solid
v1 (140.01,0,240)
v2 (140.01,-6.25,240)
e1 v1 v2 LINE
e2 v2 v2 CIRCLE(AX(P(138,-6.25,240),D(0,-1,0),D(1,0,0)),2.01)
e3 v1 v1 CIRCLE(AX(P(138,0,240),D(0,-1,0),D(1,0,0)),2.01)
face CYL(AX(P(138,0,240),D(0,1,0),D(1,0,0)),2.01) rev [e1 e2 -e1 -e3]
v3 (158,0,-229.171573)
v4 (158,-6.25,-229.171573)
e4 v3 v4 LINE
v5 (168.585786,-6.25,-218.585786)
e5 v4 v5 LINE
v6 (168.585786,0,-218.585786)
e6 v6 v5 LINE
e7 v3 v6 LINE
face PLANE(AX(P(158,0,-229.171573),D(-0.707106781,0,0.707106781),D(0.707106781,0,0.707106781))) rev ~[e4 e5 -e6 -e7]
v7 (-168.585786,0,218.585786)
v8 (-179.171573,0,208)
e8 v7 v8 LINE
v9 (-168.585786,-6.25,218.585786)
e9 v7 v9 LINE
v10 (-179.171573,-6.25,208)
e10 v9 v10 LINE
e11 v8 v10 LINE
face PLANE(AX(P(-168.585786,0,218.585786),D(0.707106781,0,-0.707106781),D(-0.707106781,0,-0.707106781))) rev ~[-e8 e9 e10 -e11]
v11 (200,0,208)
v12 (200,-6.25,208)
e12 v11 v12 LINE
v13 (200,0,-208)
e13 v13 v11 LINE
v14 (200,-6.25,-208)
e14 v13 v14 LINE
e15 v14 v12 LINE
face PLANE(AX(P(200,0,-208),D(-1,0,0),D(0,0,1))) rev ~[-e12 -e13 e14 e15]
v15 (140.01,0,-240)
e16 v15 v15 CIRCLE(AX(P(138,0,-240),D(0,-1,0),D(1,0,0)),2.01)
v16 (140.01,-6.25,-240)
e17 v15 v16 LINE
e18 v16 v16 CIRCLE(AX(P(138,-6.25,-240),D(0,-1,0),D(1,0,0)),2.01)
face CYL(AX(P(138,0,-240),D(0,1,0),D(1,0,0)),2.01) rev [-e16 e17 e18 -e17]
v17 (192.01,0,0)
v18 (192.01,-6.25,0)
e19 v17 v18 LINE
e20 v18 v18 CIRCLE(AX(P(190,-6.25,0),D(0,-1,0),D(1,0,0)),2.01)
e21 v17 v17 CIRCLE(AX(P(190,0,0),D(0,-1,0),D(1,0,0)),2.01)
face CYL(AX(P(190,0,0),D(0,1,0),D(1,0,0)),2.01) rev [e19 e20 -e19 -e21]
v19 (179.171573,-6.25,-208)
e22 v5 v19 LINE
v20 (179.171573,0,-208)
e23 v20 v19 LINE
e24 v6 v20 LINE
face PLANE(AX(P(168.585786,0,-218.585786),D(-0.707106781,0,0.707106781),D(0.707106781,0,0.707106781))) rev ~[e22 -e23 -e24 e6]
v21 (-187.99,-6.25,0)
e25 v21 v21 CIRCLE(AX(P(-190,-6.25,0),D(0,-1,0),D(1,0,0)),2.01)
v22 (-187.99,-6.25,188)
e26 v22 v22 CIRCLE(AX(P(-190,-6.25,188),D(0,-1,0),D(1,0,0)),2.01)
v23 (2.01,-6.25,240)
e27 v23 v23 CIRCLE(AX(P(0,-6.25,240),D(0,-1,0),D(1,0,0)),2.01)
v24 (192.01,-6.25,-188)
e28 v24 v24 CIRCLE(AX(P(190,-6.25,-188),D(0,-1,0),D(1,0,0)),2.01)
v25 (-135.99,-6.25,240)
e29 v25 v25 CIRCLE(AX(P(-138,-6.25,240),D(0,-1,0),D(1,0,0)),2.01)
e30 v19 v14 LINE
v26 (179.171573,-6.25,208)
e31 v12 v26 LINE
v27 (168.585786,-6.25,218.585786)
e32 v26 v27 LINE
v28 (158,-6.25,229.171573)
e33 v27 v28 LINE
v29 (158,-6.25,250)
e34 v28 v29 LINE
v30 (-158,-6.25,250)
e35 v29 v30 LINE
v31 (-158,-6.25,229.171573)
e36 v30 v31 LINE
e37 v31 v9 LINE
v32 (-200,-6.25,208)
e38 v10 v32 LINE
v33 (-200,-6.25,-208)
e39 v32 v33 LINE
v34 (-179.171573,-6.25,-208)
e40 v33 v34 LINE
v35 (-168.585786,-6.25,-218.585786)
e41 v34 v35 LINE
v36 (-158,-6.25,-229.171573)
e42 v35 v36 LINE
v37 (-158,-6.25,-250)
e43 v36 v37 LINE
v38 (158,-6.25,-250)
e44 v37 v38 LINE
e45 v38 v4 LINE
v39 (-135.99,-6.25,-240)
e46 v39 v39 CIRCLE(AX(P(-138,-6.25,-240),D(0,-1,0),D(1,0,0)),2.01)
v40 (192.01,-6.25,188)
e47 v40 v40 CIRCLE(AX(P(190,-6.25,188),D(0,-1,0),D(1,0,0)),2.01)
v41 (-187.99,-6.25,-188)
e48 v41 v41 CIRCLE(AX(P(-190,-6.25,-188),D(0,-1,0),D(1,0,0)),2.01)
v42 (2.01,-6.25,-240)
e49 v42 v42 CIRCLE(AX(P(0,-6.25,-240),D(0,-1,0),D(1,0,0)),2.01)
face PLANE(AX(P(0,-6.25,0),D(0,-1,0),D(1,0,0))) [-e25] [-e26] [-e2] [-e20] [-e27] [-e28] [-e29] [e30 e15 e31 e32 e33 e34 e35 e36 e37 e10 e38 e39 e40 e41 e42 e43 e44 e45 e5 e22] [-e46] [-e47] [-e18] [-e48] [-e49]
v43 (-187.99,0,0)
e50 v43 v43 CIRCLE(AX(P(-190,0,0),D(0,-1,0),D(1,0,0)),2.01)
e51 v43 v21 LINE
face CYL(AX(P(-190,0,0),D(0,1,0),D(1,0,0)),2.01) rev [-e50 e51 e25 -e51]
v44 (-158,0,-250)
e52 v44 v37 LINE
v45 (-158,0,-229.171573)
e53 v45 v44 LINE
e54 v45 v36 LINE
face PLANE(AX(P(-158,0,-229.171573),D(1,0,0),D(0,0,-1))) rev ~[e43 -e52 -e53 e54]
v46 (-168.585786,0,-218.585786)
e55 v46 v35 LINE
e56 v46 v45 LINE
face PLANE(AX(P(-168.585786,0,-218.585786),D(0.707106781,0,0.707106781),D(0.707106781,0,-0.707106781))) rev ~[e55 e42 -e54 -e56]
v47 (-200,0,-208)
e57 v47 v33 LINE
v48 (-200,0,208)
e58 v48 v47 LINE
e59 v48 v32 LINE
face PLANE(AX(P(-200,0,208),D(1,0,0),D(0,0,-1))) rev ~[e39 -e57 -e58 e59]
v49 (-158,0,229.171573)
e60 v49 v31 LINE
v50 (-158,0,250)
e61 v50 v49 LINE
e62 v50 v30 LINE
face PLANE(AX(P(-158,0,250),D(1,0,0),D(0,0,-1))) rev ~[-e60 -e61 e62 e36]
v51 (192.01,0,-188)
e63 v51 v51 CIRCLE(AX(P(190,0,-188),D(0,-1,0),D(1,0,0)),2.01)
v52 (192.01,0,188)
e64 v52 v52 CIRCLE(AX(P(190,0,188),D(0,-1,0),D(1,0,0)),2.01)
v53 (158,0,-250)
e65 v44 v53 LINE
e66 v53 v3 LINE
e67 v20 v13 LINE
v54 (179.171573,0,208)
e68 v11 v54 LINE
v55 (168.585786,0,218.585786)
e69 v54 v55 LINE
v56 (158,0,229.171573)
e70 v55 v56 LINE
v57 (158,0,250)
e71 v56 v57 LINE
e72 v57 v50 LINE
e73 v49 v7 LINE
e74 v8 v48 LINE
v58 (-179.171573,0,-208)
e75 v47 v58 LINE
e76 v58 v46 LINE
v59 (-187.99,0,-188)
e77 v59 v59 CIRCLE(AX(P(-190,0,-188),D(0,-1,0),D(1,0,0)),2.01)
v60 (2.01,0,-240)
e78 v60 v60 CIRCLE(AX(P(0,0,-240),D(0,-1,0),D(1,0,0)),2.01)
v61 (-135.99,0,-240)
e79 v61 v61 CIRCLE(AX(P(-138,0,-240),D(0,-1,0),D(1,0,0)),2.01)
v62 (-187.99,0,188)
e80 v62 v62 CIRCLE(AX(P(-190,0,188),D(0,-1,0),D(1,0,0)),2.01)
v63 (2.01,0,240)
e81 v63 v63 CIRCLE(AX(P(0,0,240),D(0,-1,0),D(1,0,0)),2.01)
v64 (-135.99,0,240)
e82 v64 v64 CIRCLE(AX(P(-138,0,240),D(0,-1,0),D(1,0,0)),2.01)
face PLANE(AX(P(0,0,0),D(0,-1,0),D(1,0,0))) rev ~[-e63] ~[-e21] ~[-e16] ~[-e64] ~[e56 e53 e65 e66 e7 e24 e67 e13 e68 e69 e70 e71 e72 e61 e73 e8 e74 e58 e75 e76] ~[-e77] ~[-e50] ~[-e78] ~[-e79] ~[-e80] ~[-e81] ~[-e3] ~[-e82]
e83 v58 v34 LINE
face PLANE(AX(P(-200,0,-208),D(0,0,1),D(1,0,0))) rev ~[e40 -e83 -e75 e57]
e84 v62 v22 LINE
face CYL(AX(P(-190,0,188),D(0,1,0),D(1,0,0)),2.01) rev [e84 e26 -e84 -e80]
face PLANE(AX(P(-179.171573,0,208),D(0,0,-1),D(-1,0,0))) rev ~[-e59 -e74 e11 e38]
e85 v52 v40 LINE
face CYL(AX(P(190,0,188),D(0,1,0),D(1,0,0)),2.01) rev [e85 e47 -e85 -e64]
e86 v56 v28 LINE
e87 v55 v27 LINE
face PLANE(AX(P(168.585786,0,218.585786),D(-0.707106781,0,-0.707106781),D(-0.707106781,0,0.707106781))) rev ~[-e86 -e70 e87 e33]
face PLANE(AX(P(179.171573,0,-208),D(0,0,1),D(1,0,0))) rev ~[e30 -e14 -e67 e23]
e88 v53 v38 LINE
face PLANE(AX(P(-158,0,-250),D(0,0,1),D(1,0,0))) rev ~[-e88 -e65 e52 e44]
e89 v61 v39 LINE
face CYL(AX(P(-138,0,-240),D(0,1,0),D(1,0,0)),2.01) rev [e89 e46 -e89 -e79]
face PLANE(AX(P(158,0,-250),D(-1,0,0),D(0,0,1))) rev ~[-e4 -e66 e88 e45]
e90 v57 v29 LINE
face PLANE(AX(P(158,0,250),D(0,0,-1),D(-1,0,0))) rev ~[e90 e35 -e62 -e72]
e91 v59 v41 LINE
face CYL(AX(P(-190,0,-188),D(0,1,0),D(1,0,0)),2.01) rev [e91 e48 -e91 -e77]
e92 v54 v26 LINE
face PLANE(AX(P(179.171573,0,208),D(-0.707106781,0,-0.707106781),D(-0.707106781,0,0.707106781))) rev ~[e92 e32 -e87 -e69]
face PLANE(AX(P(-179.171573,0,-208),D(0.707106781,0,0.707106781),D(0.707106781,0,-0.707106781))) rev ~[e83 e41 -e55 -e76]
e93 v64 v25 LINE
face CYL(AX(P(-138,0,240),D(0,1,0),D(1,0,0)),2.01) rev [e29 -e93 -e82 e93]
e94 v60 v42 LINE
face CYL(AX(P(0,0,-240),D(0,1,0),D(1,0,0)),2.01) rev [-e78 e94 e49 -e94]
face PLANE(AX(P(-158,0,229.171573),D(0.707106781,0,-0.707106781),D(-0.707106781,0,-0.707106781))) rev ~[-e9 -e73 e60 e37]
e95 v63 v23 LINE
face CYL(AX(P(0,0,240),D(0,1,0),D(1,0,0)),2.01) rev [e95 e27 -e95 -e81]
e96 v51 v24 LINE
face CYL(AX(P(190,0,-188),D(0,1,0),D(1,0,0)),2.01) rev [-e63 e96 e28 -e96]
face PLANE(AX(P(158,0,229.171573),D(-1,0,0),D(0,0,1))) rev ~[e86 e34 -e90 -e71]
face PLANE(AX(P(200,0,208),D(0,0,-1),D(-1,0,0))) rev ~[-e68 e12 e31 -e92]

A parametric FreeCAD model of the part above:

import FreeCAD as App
import Part
import Sketcher
from FreeCAD import Vector
Q = App.Units.Quantity


def add_polygon(sketch, points):
    """Adds a closed chain of lines whose ends are joined by coincident constraints."""
    first, n = sketch.GeometryCount, len(points)
    for a, b in zip(points, points[1:] + points[:1]):
        sketch.addGeometry(Part.LineSegment(App.Vector(*a, 0), App.Vector(*b, 0)), False)
    for i in range(n):
        sketch.addConstraint(Sketcher.Constraint("Coincident", first + i, 2, first + (i + 1) % n, 1))

doc = App.newDocument("Part")
params = doc.addObject("Spreadsheet::Sheet", "Params")
for row, (alias, value) in enumerate([
    ("sketch1_diameter", "4.02 mm"),
    ("sketch1_width", "316 mm"),
    ("sketch1_height", "416 mm"),
    ("pad1_length", "6.25 mm"),
], start=1):
    params.set(f"A{row}", alias)
    params.set(f"B{row}", "=" + value)
    params.setAlias(f"B{row}", alias)

body = doc.addObject("PartDesign::Body", "Body")

# Sketch on XZ plane
sketch1 = body.newObject("Sketcher::SketchObject", "Sketch")
sketch1.AttachmentSupport = (doc.getObject("XZ_Plane"), [""])
sketch1.MapMode = "FlatFace"
add_polygon(sketch1, [(179.2, -208), (200, -208), (200, 208), (179.2, 208), (168.6, 218.6), (158, 229.2), (158, 250), (-158, 250), (-158, 229.2), (-168.6, 218.6), (-179.2, 208), (-200, 208), (-200, -208), (-179.2, -208), (-168.6, -218.6), (-158, -229.2), (-158, -250), (158, -250), (158, -229.2), (168.6, -218.6)])  # lines 0-19
sketch1.addGeometry(Part.Circle(Vector(-190, -188, 0), Vector(0, 0, 1), 2), False)  # 20
sketch1.addGeometry(Part.Circle(Vector(-138, -240, 0), Vector(0, 0, 1), 2), False)  # 21
sketch1.addGeometry(Part.Circle(Vector(0, -240, 0), Vector(0, 0, 1), 2), False)  # 22
sketch1.addGeometry(Part.Circle(Vector(138, -240, 0), Vector(0, 0, 1), 2), False)  # 23
sketch1.addGeometry(Part.Circle(Vector(190, -188, 0), Vector(0, 0, 1), 2), False)  # 24
sketch1.addGeometry(Part.Circle(Vector(-190, 0, 0), Vector(0, 0, 1), 2), False)  # 25
sketch1.addGeometry(Part.Circle(Vector(-190, 188, 0), Vector(0, 0, 1), 2), False)  # 26
sketch1.addGeometry(Part.Circle(Vector(-138, 240, 0), Vector(0, 0, 1), 2), False)  # 27
sketch1.addGeometry(Part.Circle(Vector(0, 240, 0), Vector(0, 0, 1), 2), False)  # 28
sketch1.addGeometry(Part.Circle(Vector(190, 0, 0), Vector(0, 0, 1), 2), False)  # 29
sketch1.addGeometry(Part.Circle(Vector(138, 240, 0), Vector(0, 0, 1), 2), False)  # 30
sketch1.addGeometry(Part.Circle(Vector(190, 188, 0), Vector(0, 0, 1), 2), False)  # 31
sketch1.addConstraint(Sketcher.Constraint("Horizontal", 0))
sketch1.addConstraint(Sketcher.Constraint("Vertical", 1))
sketch1.addConstraint(Sketcher.Constraint("Horizontal", 2))
sketch1.addConstraint(Sketcher.Constraint("Vertical", 5))
sketch1.addConstraint(Sketcher.Constraint("Horizontal", 6))
sketch1.addConstraint(Sketcher.Constraint("Vertical", 7))
sketch1.addConstraint(Sketcher.Constraint("Horizontal", 10))
sketch1.addConstraint(Sketcher.Constraint("Vertical", 11))
sketch1.addConstraint(Sketcher.Constraint("Horizontal", 12))
sketch1.addConstraint(Sketcher.Constraint("Vertical", 15))
sketch1.addConstraint(Sketcher.Constraint("Horizontal", 16))
sketch1.addConstraint(Sketcher.Constraint("Vertical", 17))
sketch1.addConstraint(Sketcher.Constraint("Equal", 20, 21))
sketch1.addConstraint(Sketcher.Constraint("Equal", 21, 22))
sketch1.addConstraint(Sketcher.Constraint("Equal", 22, 23))
sketch1.addConstraint(Sketcher.Constraint("Equal", 23, 24))
sketch1.addConstraint(Sketcher.Constraint("Equal", 24, 25))
sketch1.addConstraint(Sketcher.Constraint("Equal", 25, 26))
sketch1.addConstraint(Sketcher.Constraint("Equal", 26, 27))
sketch1.addConstraint(Sketcher.Constraint("Equal", 27, 28))
sketch1.addConstraint(Sketcher.Constraint("Equal", 28, 29))
sketch1.addConstraint(Sketcher.Constraint("Equal", 29, 30))
sketch1.addConstraint(Sketcher.Constraint("Equal", 30, 31))
sketch1.addConstraint(Sketcher.Constraint("Symmetric", 24, 3, 26, 3, -1, 1))
sketch1.addConstraint(Sketcher.Constraint("Symmetric", 23, 3, 27, 3, -1, 1))
sketch1.addConstraint(Sketcher.Constraint("Symmetric", 22, 3, 28, 3, -1, 1))
sketch1.addConstraint(Sketcher.Constraint("Symmetric", 25, 3, 29, 3, -1, 1))
sketch1.addConstraint(Sketcher.Constraint("Symmetric", 21, 3, 30, 3, -1, 1))
sketch1.addConstraint(Sketcher.Constraint("Symmetric", 20, 3, 31, 3, -1, 1))
sketch1.addConstraint(Sketcher.Constraint("Symmetric", 0, 2, 10, 2, -1, 1))
sketch1.addConstraint(Sketcher.Constraint("Symmetric", 2, 2, 12, 2, -1, 1))
sketch1.addConstraint(Sketcher.Constraint("Symmetric", 3, 2, 13, 2, -1, 1))
sketch1.addConstraint(Sketcher.Constraint("Symmetric", 4, 2, 14, 2, -1, 1))
sketch1.addConstraint(Sketcher.Constraint("Symmetric", 6, 2, 16, 2, -1, 1))
sketch1.addConstraint(Sketcher.Constraint("Symmetric", 8, 2, 18, 2, -1, 1))
sketch1.addConstraint(Sketcher.Constraint("Symmetric", 21, 3, 23, 3, -2))
sketch1.addConstraint(Sketcher.Constraint("Symmetric", 20, 3, 24, 3, -2))
sketch1.addConstraint(Sketcher.Constraint("Symmetric", 4, 2, 7, 2, -2))
sketch1.addConstraint(Sketcher.Constraint("Symmetric", 3, 2, 8, 2, -2))
sketch1.addConstraint(Sketcher.Constraint("Symmetric", 2, 2, 9, 2, -2))
sketch1.addConstraint(Sketcher.Constraint("PointOnObject", 22, 3, -2))
sketch1.addConstraint(Sketcher.Constraint("PointOnObject", 25, 3, -1))
sketch1.addConstraint(Sketcher.Constraint("Parallel", 3, 4))
sketch1.addConstraint(Sketcher.Constraint("Perpendicular", 4, 8))
sketch1.addConstraint(Sketcher.Constraint("Perpendicular", 14, 18))
sketch1.addConstraint(Sketcher.Constraint("Parallel", 18, 19))
sketch1.addConstraint(Sketcher.Constraint("Horizontal", 21, 3, 22, 3))
sketch1.addConstraint(Sketcher.Constraint("Vertical", 20, 3, 25, 3))
sketch1.addConstraint(Sketcher.Constraint("Equal", 12, 5))
sketch1.addConstraint(Sketcher.Constraint("Equal", 3, 4))
sketch1.addConstraint(Sketcher.Constraint("Diameter", 20, Q("4.02 mm")))
sketch1.addConstraint(Sketcher.Constraint("DistanceX", 6, 2, 6, 1, Q("316 mm")))
sketch1.addConstraint(Sketcher.Constraint("DistanceY", 1, 1, 1, 2, Q("416 mm")))
sketch1.addConstraint(Sketcher.Constraint("DistanceX", 20, 3, -1, 1, Q("190 mm")))
sketch1.addConstraint(Sketcher.Constraint("DistanceY", 20, 3, -1, 1, Q("188 mm")))
sketch1.addConstraint(Sketcher.Constraint("DistanceX", 21, 3, -1, 1, Q("138 mm")))
sketch1.addConstraint(Sketcher.Constraint("DistanceY", 21, 3, -1, 1, Q("240 mm")))
sketch1.addConstraint(Sketcher.Constraint("DistanceX", -1, 1, 0, 2, Q("200 mm")))
sketch1.addConstraint(Sketcher.Constraint("DistanceX", 0, 1, 0, 2, Q("20.828427 mm")))
sketch1.setExpression("Constraints[70]", "Params.sketch1_diameter")
sketch1.setExpression("Constraints[71]", "Params.sketch1_width")
sketch1.setExpression("Constraints[72]", "Params.sketch1_height")
pad1 = body.newObject("PartDesign::Pad", "Pad")
pad1.Profile = sketch1
pad1.setExpression("Length", "Params.pad1_length")

doc.recompute()
